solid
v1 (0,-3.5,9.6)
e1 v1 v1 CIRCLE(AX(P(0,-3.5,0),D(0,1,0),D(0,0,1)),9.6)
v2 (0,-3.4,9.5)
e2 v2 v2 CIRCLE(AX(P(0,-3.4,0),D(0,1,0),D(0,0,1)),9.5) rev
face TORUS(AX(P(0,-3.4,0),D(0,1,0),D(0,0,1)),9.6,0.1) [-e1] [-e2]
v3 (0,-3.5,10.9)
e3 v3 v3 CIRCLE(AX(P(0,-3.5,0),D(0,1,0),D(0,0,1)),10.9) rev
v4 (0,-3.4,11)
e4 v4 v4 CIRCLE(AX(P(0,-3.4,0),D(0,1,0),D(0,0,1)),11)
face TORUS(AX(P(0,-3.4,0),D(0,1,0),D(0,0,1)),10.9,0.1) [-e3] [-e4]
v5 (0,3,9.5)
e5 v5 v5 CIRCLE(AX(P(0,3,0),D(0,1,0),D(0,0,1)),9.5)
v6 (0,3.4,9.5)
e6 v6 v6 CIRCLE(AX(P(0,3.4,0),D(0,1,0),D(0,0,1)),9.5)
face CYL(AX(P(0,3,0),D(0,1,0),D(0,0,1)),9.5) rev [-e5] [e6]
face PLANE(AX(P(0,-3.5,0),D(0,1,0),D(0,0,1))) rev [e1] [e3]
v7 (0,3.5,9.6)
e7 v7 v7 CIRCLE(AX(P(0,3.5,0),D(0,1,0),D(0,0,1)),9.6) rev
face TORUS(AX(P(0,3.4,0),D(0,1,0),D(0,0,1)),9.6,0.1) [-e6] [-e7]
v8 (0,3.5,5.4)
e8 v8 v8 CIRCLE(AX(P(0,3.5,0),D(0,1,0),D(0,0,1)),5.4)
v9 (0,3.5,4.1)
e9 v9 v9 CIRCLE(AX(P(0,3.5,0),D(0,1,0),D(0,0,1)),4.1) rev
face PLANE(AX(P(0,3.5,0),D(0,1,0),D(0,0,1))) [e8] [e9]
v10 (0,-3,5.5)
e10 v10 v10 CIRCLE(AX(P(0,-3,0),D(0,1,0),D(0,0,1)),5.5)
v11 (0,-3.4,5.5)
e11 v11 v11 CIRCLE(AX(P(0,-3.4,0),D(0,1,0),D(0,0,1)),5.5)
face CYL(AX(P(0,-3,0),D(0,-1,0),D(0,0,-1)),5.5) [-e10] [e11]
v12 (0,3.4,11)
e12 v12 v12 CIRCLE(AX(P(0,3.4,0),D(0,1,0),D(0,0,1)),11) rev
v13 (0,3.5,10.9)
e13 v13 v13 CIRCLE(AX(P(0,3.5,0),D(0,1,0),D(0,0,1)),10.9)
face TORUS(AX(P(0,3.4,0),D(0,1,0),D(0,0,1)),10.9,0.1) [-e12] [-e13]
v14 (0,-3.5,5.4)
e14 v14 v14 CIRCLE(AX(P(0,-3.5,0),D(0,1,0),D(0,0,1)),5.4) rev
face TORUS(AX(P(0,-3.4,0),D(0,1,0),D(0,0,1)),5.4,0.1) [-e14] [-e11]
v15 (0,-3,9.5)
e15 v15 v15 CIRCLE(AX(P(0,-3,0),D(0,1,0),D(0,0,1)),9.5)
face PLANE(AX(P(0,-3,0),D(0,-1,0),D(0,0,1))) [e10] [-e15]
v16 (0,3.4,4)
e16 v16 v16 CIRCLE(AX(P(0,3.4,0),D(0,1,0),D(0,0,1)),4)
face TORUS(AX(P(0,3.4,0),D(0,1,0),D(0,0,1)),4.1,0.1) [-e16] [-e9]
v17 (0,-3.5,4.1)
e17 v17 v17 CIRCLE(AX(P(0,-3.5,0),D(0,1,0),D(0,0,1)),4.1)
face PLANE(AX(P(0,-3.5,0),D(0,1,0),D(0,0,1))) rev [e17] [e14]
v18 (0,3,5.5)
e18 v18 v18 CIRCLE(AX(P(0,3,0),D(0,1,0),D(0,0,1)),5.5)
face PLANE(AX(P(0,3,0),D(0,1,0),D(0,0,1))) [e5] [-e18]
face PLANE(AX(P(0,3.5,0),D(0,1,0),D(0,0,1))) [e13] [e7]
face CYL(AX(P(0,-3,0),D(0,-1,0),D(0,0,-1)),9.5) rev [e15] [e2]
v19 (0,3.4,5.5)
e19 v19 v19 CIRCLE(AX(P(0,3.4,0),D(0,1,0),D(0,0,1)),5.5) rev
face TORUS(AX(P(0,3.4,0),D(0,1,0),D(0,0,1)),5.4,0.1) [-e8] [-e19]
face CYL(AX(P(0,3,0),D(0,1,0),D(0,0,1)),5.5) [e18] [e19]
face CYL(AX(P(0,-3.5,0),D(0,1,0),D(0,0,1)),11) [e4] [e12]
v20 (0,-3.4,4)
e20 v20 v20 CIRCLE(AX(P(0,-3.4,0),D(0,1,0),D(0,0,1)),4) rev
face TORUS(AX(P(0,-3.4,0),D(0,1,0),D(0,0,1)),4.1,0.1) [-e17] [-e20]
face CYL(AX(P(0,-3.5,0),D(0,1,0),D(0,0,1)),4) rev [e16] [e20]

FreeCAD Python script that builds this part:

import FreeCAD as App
import Part
import Sketcher
from FreeCAD import Vector


def edges_at(feature, points):
    """Names of the edges that pass closest to the given points."""
    edges = feature.Shape.Edges
    near = lambda p: min(range(len(edges)), key=lambda i: edges[i].distToShape(Part.Vertex(*p))[0])
    return sorted({f"Edge{near(p) + 1}" for p in points})

doc = App.newDocument("Part")
body = doc.addObject("PartDesign::Body", "Body")

# Sketch on XZ plane
sketch1 = body.newObject("Sketcher::SketchObject", "Sketch")
sketch1.AttachmentSupport = (doc.getObject("XZ_Plane"), [""])
sketch1.MapMode = "FlatFace"
sketch1.addGeometry([
    Part.Circle(Vector(0, 0, 0), Vector(0, 0, 1), 11),
    Part.Circle(Vector(0, 0, 0), Vector(0, 0, 1), 4),
], False)
sketch1.addConstraint([
    Sketcher.Constraint("Coincident", 0, 3, -1, 1),
    Sketcher.Constraint("Coincident", 1, 3, -1, 1),
    Sketcher.Constraint("Diameter", 0, 22.0),
    Sketcher.Constraint("Diameter", 1, 8.0),
])
pad1 = body.newObject("PartDesign::Pad", "Pad")
pad1.Profile = sketch1
pad1.Type = "TwoLengths"
pad1.Length = 3.5
pad1.Length2 = 3.5
pad1.Reversed = True

# Sketch on XZ plane
sketch2 = body.newObject("Sketcher::SketchObject", "Sketch001")
sketch2.AttachmentSupport = (doc.getObject("XZ_Plane"), [""])
sketch2.MapMode = "FlatFace"
sketch2.AttachmentOffset = App.Placement(Vector(0, 0, -3.5), App.Rotation())
sketch2.addGeometry([
    Part.Circle(Vector(0, 0, 0), Vector(0, 0, 1), 10),
    Part.Circle(Vector(0, 0, 0), Vector(0, 0, 1), 6),
], False)
sketch2.addConstraint([
    Sketcher.Constraint("Coincident", 0, 3, -1, 1),
    Sketcher.Constraint("Coincident", 1, 3, -1, 1),
    Sketcher.Constraint("Diameter", 0, 19.0),
    Sketcher.Constraint("Diameter", 1, 11.0),
])
pocket1 = body.newObject("PartDesign::Pocket", "Pocket")
pocket1.Profile = sketch2
pocket1.Length = 0.5
pocket1.Reversed = True
doc.recompute()

fillet = body.newObject("PartDesign::Fillet", "Fillet")
fillet.Base = (pocket1, edges_at(pocket1, [
    (0, 3.5, -9.5),
    (0, 3.5, -5.5),
    (0, 3.5, -11),
    (0, 3.5, -4),
]))
fillet.Radius = 0.1
doc.recompute()

mirrored = body.newObject("PartDesign::Mirrored", "Mirrored")
mirrored.Originals = [pocket1]
mirrored.MirrorPlane = (doc.getObject("XZ_Plane"), [""])
body.Tip = mirrored
doc.recompute()

fillet2 = body.newObject("PartDesign::Fillet", "Fillet001")
fillet2.Base = (mirrored, edges_at(mirrored, [
    (0, -3.5, -5.5),
    (0, -3.5, -9.5),
    (0, -3.5, -11),
    (0, -3.5, -4),
]))
fillet2.Radius = 0.1

doc.recompute()
